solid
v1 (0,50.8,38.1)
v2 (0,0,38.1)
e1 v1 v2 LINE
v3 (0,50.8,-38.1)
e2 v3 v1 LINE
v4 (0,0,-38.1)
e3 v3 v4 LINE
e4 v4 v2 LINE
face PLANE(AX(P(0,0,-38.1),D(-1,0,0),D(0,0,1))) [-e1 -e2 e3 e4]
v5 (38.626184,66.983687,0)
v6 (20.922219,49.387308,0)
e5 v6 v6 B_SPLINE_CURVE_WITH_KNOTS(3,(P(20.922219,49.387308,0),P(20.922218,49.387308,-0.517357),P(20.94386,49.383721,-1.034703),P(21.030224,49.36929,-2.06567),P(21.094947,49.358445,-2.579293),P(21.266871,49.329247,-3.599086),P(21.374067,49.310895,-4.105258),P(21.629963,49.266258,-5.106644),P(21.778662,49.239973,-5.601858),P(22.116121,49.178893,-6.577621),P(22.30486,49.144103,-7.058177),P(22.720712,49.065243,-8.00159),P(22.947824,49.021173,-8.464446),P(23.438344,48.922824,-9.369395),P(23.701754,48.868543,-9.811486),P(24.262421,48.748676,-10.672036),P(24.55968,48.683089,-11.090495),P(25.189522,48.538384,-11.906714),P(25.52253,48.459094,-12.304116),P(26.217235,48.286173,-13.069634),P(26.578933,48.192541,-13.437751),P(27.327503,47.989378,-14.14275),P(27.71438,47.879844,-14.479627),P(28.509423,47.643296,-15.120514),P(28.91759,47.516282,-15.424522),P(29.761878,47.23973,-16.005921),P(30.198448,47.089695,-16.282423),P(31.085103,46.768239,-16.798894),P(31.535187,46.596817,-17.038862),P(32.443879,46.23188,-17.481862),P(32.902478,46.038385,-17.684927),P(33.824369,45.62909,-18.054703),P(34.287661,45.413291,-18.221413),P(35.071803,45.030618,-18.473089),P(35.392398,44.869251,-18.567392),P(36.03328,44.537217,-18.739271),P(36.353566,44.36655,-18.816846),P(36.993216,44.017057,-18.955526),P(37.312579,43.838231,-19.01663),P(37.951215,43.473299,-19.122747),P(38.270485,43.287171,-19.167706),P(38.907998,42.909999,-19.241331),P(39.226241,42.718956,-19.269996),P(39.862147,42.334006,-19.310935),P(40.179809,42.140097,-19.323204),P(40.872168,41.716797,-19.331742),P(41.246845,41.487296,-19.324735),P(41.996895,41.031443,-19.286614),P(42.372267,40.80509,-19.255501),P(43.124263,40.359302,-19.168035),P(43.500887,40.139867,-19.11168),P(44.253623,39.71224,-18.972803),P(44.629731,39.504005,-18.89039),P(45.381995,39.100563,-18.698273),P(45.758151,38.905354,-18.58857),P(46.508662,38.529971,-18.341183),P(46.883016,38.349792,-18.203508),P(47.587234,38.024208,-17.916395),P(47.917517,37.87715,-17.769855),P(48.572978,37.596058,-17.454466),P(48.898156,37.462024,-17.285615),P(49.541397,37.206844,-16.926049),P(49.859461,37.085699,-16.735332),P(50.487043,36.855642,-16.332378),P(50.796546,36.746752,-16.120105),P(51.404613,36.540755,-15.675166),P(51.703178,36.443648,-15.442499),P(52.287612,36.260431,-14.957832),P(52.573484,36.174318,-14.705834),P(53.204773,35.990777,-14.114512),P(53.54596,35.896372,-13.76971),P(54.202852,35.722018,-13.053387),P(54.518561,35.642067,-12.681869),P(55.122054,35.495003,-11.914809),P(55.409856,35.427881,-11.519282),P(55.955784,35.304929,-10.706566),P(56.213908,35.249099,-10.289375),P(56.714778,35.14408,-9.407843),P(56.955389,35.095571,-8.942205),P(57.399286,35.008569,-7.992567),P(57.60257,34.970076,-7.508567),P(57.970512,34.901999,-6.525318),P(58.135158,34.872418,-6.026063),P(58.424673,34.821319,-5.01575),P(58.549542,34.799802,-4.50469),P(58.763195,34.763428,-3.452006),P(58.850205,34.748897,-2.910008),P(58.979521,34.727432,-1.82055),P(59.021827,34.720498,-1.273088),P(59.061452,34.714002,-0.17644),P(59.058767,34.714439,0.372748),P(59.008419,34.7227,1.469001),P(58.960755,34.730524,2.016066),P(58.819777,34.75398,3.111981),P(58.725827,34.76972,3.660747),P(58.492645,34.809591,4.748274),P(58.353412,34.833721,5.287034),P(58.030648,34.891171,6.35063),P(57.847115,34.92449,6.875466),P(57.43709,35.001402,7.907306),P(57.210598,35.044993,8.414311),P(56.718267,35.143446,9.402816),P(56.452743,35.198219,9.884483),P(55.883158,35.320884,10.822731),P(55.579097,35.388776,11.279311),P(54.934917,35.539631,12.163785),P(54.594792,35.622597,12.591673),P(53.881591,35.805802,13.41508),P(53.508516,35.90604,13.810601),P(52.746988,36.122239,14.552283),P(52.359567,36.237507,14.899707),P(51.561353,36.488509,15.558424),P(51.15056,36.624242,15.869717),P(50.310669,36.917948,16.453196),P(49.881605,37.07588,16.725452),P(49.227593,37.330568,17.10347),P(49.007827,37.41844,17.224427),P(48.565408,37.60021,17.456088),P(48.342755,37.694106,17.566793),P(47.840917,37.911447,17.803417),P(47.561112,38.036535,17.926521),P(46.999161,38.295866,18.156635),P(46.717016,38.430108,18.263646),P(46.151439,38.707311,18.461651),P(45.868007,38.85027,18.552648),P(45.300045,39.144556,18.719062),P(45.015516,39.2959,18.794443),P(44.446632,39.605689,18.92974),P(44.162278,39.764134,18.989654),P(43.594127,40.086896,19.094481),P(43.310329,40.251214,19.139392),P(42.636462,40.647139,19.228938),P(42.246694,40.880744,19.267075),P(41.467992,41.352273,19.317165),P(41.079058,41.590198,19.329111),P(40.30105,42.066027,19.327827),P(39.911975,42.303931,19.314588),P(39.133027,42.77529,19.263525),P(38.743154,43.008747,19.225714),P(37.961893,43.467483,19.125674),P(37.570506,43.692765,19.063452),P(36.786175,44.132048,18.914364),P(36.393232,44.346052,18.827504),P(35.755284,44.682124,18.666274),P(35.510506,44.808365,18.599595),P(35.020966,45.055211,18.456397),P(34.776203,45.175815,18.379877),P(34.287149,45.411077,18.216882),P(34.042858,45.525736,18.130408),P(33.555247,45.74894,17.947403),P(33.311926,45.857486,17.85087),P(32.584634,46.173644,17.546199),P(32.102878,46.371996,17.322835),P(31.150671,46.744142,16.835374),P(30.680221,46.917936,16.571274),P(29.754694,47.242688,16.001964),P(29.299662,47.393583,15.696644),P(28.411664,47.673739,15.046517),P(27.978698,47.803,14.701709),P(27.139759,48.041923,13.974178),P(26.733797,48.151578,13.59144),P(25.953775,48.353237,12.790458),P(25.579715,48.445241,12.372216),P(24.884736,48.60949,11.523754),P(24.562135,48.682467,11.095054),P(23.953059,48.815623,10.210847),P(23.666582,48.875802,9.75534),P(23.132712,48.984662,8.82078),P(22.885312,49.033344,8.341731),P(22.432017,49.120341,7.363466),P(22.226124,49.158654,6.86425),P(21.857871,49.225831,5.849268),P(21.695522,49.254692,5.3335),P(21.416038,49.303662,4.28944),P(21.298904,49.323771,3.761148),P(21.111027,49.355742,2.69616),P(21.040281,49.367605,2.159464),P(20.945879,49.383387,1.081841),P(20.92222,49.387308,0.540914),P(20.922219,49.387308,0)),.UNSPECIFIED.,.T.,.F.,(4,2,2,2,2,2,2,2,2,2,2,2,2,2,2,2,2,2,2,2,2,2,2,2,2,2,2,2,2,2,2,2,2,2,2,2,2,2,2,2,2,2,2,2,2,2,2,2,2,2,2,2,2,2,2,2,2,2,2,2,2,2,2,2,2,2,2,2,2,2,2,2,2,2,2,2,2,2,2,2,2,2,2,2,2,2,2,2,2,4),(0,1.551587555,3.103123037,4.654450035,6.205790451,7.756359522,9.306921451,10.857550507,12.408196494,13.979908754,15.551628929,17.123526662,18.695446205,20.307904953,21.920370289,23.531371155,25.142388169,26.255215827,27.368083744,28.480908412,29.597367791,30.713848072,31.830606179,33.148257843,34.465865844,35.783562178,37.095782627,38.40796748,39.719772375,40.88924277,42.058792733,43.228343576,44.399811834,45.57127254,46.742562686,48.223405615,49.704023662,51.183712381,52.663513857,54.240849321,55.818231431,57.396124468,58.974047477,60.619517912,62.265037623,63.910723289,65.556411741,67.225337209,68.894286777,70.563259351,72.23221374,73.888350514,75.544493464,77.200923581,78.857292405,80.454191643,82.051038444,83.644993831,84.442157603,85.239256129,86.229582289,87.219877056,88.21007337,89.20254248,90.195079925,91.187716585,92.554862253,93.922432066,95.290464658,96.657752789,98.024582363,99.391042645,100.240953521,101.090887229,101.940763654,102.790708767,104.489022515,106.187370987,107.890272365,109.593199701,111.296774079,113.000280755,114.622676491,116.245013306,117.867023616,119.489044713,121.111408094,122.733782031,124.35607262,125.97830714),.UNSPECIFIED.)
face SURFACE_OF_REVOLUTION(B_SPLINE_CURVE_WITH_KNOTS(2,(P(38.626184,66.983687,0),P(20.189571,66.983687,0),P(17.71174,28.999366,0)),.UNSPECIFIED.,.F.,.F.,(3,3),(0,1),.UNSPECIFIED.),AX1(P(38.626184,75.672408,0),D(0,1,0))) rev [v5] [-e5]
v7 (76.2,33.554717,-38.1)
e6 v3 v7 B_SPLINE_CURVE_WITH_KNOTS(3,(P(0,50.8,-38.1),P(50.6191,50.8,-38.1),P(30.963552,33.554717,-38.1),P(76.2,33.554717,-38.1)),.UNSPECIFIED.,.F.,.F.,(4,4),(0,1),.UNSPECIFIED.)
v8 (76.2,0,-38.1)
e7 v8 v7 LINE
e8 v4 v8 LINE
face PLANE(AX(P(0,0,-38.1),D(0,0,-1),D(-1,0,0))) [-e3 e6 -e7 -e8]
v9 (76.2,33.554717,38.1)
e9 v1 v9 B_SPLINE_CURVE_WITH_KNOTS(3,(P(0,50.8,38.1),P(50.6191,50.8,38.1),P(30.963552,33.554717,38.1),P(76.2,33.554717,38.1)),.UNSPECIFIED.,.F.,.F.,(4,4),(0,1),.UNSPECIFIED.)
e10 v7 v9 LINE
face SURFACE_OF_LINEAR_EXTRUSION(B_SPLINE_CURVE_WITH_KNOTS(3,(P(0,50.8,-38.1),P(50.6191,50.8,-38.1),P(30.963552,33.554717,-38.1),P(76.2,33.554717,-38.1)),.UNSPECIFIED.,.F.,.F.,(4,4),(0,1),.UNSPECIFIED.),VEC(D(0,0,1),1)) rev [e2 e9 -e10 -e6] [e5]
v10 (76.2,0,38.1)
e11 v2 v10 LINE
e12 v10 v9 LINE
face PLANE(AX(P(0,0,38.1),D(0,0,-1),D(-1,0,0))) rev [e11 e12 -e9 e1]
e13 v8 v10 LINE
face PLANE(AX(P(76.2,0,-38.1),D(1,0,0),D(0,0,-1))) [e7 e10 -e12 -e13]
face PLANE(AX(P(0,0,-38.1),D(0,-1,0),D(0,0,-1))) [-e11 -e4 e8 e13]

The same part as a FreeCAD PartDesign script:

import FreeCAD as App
import Part
import Sketcher
from FreeCAD import Vector
Q = App.Units.Quantity

doc = App.newDocument("Part")
body = doc.addObject("PartDesign::Body", "Body")

# Sketch on XY plane
sketch1 = body.newObject("Sketcher::SketchObject", "Sketch")
sketch1.AttachmentSupport = (doc.getObject("XY_Plane"), [""])
sketch1.MapMode = "FlatFace"
sketch1.addGeometry(Part.LineSegment(Vector(0, 51, 0), Vector(0, 0, 0)), False)
sketch1.addGeometry(Part.LineSegment(Vector(0, 0, 0), Vector(76, 0, 0)), False)
sketch1.addGeometry(Part.LineSegment(Vector(76, 0, 0), Vector(76, 51, 0)), False)
sketch1.addGeometry(Part.LineSegment(Vector(76, 51, 0), Vector(0, 51, 0)), False)
sketch1.addConstraint(Sketcher.Constraint("Coincident", 0, 2, 1, 1))
sketch1.addConstraint(Sketcher.Constraint("Coincident", 1, 2, 2, 1))
sketch1.addConstraint(Sketcher.Constraint("Coincident", 2, 2, 3, 1))
sketch1.addConstraint(Sketcher.Constraint("Coincident", 3, 2, 0, 1))
sketch1.addConstraint(Sketcher.Constraint("Vertical", 0))
sketch1.addConstraint(Sketcher.Constraint("Horizontal", 1))
sketch1.addConstraint(Sketcher.Constraint("Vertical", 2))
sketch1.addConstraint(Sketcher.Constraint("Horizontal", 3))
sketch1.addConstraint(Sketcher.Constraint("Coincident", 0, 2, -1, 1))
sketch1.addConstraint(Sketcher.Constraint("DistanceX", 1, 1, 1, 2, Q("3 in")))
sketch1.addConstraint(Sketcher.Constraint("DistanceY", 0, 2, 0, 1, Q("2 in")))
pad1 = body.newObject("PartDesign::Pad", "Pad")
pad1.Profile = sketch1
pad1.Type = "TwoLengths"
pad1.Length = Q("1.5 in")
pad1.Length2 = Q("1.5 in")

# Sketch on XY plane
sketch2 = body.newObject("Sketcher::SketchObject", "Sketch001")
sketch2.AttachmentSupport = (doc.getObject("XY_Plane"), [""])
sketch2.MapMode = "FlatFace"
sketch2.AttachmentOffset = App.Placement(Vector(0, 0, 1.5 * 25.4), App.Rotation())
sketch2.addGeometry(Part.LineSegment(Vector(76.2, 50.8, 0), Vector(0, 50.8, 0)), False)
sketch2.addGeometry(Part.BSplineCurve([Vector(0, 50.8, 0), Vector(50.6191, 50.8, 0), Vector(30.963552, 33.554717, 0), Vector(76.2, 33.554717, 0)], [4, 4], [0, 1], False, 3, [1, 1, 1, 1], False), False)
sketch2.addGeometry(Part.LineSegment(Vector(76.2, 33.554717, 0), Vector(76.2, 50.8, 0)), False)
sketch2.addConstraint(Sketcher.Constraint("Block", 1))
sketch2.addConstraint(Sketcher.Constraint("Coincident", 0, 2, 1, 1))
sketch2.addConstraint(Sketcher.Constraint("Coincident", 1, 2, 2, 1))
sketch2.addConstraint(Sketcher.Constraint("Coincident", 2, 2, 0, 1))
sketch2.addConstraint(Sketcher.Constraint("Horizontal", 0))
sketch2.addConstraint(Sketcher.Constraint("Vertical", 2))
pocket1 = body.newObject("PartDesign::Pocket", "Pocket")
pocket1.Profile = sketch2
pocket1.Type = "ThroughAll"

# Sketch on XY plane
sketch3 = body.newObject("Sketcher::SketchObject", "Sketch002")
sketch3.AttachmentSupport = (doc.getObject("XY_Plane"), [""])
sketch3.MapMode = "FlatFace"
sketch3.addGeometry(Part.LineSegment(Vector(17.71174, 28.999366, 0), Vector(38.626184, 28.999366, 0)), False)
sketch3.addGeometry(Part.LineSegment(Vector(38.626184, 28.999366, 0), Vector(38.626184, 66.983687, 0)), False)
sketch3.addGeometry(Part.BSplineCurve([Vector(38.626184, 66.983687, 0), Vector(20.189571, 66.983687, 0), Vector(17.71174, 28.999366, 0)], [3, 3], [0, 1], False, 2, [1, 1, 1], False), False)
sketch3.addGeometry(Part.LineSegment(Vector(38.626184, 66.983687, 0), Vector(38.626184, 28.999366, 0)), True)  # axis
sketch3.addConstraint(Sketcher.Constraint("Block", 2))
sketch3.addConstraint(Sketcher.Constraint("Coincident", 0, 2, 1, 1))
sketch3.addConstraint(Sketcher.Constraint("Coincident", 1, 2, 2, 1))
sketch3.addConstraint(Sketcher.Constraint("Coincident", 2, 2, 0, 1))
sketch3.addConstraint(Sketcher.Constraint("Horizontal", 0))
sketch3.addConstraint(Sketcher.Constraint("Vertical", 1))
sketch3.addConstraint(Sketcher.Constraint("Vertical", 3))
sketch3.addConstraint(Sketcher.Constraint("Coincident", 3, 1, 1, 2))
sketch3.addConstraint(Sketcher.Constraint("Equal", 1, 3))
revolution = body.newObject("PartDesign::Revolution", "Revolution")
revolution.Profile = sketch3
revolution.ReferenceAxis = (sketch3, ["Axis0"])
revolution.Angle = 360

doc.recompute()
